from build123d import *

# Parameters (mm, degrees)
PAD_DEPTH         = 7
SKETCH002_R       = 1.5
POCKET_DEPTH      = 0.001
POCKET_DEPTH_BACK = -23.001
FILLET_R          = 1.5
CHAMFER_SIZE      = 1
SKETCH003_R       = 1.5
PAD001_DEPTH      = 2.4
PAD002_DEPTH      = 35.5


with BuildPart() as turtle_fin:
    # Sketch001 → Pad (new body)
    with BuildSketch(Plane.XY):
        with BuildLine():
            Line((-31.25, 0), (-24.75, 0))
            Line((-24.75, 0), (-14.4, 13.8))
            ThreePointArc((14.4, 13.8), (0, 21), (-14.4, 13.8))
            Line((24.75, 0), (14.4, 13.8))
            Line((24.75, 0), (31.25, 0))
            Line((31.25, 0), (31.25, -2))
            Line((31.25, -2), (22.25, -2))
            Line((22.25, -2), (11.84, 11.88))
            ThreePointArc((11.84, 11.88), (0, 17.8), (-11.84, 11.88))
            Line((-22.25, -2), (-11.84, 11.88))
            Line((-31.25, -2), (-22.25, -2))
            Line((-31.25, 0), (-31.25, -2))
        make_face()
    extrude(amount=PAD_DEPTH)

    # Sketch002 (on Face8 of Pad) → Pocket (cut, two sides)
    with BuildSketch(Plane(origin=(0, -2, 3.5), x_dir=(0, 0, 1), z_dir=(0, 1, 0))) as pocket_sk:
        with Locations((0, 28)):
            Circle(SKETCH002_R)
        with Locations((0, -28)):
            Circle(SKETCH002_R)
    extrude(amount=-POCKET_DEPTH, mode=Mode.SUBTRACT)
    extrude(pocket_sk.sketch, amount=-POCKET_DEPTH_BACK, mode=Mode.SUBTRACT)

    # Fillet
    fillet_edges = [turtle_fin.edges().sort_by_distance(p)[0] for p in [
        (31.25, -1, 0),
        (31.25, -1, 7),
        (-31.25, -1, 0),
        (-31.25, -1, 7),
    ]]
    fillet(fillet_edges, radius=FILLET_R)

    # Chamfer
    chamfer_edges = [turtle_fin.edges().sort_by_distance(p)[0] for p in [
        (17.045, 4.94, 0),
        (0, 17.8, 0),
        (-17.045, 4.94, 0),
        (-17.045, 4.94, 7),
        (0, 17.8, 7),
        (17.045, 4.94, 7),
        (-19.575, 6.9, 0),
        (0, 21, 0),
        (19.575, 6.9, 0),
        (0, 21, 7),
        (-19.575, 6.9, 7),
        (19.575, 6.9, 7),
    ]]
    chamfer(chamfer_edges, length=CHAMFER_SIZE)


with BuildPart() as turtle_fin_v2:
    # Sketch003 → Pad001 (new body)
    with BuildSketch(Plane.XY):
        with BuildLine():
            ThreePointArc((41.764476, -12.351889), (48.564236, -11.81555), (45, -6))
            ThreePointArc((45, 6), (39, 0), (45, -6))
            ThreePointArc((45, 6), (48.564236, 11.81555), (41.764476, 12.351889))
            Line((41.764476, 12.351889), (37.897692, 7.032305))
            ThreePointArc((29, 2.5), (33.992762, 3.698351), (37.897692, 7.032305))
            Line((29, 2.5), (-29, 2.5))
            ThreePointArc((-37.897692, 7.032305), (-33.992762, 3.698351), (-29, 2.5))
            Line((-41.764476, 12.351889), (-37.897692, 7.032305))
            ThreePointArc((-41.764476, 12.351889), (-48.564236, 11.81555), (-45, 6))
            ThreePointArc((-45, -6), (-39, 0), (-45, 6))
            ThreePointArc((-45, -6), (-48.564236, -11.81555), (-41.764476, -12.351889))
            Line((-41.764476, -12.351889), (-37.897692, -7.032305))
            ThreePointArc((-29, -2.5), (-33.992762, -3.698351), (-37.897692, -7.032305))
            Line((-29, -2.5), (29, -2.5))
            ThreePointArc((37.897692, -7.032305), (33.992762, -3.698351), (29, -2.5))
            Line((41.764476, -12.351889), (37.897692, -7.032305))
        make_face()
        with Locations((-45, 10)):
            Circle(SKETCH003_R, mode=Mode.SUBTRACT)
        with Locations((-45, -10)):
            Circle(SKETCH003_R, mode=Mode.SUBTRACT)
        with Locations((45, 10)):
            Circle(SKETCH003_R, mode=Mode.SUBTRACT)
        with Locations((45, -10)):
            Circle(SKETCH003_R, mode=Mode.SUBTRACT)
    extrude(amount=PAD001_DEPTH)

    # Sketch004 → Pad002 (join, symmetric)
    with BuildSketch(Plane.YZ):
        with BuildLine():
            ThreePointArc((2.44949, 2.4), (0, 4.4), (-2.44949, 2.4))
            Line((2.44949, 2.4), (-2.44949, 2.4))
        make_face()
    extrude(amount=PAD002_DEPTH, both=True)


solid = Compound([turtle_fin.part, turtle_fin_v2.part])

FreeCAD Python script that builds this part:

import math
import FreeCAD as App
import Part
import Sketcher
Q = App.Units.Quantity


def edges_at(feature, points):
    """Names of the edges that pass closest to the given points."""
    edges = feature.Shape.Edges
    near = lambda p: min(range(len(edges)), key=lambda i: edges[i].distToShape(Part.Vertex(*p))[0])
    return sorted({f"Edge{near(p) + 1}" for p in points})

doc = App.newDocument("Part")
body = doc.addObject("PartDesign::Body", "Body")

sketch1 = body.newObject("Sketcher::SketchObject", "Sketch")
sketch1.AttachmentSupport = (doc.getObject("XY_Plane"), [""])
sketch1.MapMode = "FlatFace"
sketch1.addGeometry(Part.LineSegment(App.Vector(-24.8, 0, 0), App.Vector(-31.2, 0, 0)), False)
sketch1.addGeometry(Part.LineSegment(App.Vector(-31.2, 0, 0), App.Vector(-31.2, -2, 0)), False)
sketch1.addGeometry(Part.LineSegment(App.Vector(-31.2, -2, 0), App.Vector(-22.2, -2, 0)), False)
sketch1.addGeometry(Part.LineSegment(App.Vector(-22.2, -2, 0), App.Vector(-11.8, 11.9, 0)), False)
sketch1.addGeometry(Part.ArcOfCircle(Part.Circle(App.Vector(0, 3, 0), App.Vector(0, 0, 1), 14.8), math.radians(37), math.radians(143)), False)
sketch1.addGeometry(Part.LineSegment(App.Vector(11.8, 11.9, 0), App.Vector(22.2, -2, 0)), False)
sketch1.addGeometry(Part.LineSegment(App.Vector(22.2, -2, 0), App.Vector(31.2, -2, 0)), False)
sketch1.addGeometry(Part.LineSegment(App.Vector(31.2, -2, 0), App.Vector(31.2, 0, 0)), False)
sketch1.addGeometry(Part.LineSegment(App.Vector(31.2, 0, 0), App.Vector(24.8, 0, 0)), False)
sketch1.addGeometry(Part.LineSegment(App.Vector(24.8, 0, 0), App.Vector(14.4, 13.8, 0)), False)
sketch1.addGeometry(Part.ArcOfCircle(Part.Circle(App.Vector(0, 3, 0), App.Vector(0, 0, 1), 18), math.radians(37), math.radians(143)), False)
sketch1.addGeometry(Part.LineSegment(App.Vector(-14.4, 13.8, 0), App.Vector(-24.8, 0, 0)), False)
sketch1.addConstraint(Sketcher.Constraint("Coincident", 0, 2, 1, 1))
sketch1.addConstraint(Sketcher.Constraint("Coincident", 1, 2, 2, 1))
sketch1.addConstraint(Sketcher.Constraint("Coincident", 2, 2, 3, 1))
sketch1.addConstraint(Sketcher.Constraint("Tangent", 3, 2, 4, 2))
sketch1.addConstraint(Sketcher.Constraint("Tangent", 4, 1, 5, 1))
sketch1.addConstraint(Sketcher.Constraint("Coincident", 5, 2, 6, 1))
sketch1.addConstraint(Sketcher.Constraint("Coincident", 6, 2, 7, 1))
sketch1.addConstraint(Sketcher.Constraint("Coincident", 7, 2, 8, 1))
sketch1.addConstraint(Sketcher.Constraint("Coincident", 8, 2, 9, 1))
sketch1.addConstraint(Sketcher.Constraint("Tangent", 9, 2, 10, 1))
sketch1.addConstraint(Sketcher.Constraint("Tangent", 10, 2, 11, 1))
sketch1.addConstraint(Sketcher.Constraint("Coincident", 11, 2, 0, 1))
sketch1.addConstraint(Sketcher.Constraint("Horizontal", 0))
sketch1.addConstraint(Sketcher.Constraint("Vertical", 1))
sketch1.addConstraint(Sketcher.Constraint("Horizontal", 2))
sketch1.addConstraint(Sketcher.Constraint("Horizontal", 6))
sketch1.addConstraint(Sketcher.Constraint("Vertical", 7))
sketch1.addConstraint(Sketcher.Constraint("Horizontal", 8))
sketch1.addConstraint(Sketcher.Constraint("Coincident", 10, 3, 4, 3))
sketch1.addConstraint(Sketcher.Constraint("Symmetric", 0, 2, 7, 2, -1, 1))
sketch1.addConstraint(Sketcher.Constraint("Symmetric", 3, 2, 4, 1, -2))
sketch1.addConstraint(Sketcher.Constraint("Symmetric", 8, 2, 11, 2, -2))
sketch1.addConstraint(Sketcher.Constraint("Parallel", 5, 9))
sketch1.addConstraint(Sketcher.Constraint("Horizontal", 2, 2, 5, 2))
sketch1.addConstraint(Sketcher.Constraint("Radius", 10, Q("18 mm")))
sketch1.addConstraint(Sketcher.Constraint("Radius", 4, Q("14.8 mm")))
sketch1.addConstraint(Sketcher.Constraint("DistanceX", 2, 1, 2, 2, Q("9 mm")))
sketch1.addConstraint(Sketcher.Constraint("DistanceY", 1, 2, 1, 1, Q("2 mm")))
sketch1.addConstraint(Sketcher.Constraint("DistanceY", -1, 1, 4, 3, Q("3 mm")))
sketch1.addConstraint(Sketcher.Constraint("DistanceX", -1, 1, 9, 2, Q("14.4 mm")))
pad1 = body.newObject("PartDesign::Pad", "Pad")
pad1.Profile = sketch1
pad1.Length = 7

sketch2 = body.newObject("Sketcher::SketchObject", "Sketch001")
sketch2.AttachmentSupport = (doc.getObject("XZ_Plane"), [""])
sketch2.MapMode = "FlatFace"
sketch2.AttachmentOffset = App.Placement(App.Vector(0, 0, 2), App.Rotation())
sketch2.addGeometry(Part.Circle(App.Vector(28, 3.5, 0), App.Vector(0, 0, 1), 1.5), False)
sketch2.addGeometry(Part.Circle(App.Vector(-28, 3.5, 0), App.Vector(0, 0, 1), 1.5), False)
sketch2.addConstraint(Sketcher.Constraint("Equal", 0, 1))
sketch2.addConstraint(Sketcher.Constraint("Symmetric", 0, 3, 1, 3, -2))
sketch2.addConstraint(Sketcher.Constraint("Diameter", 0, Q("3 mm")))
sketch2.addConstraint(Sketcher.Constraint("DistanceX", -1, 1, 0, 3, Q("28 mm")))
sketch2.addConstraint(Sketcher.Constraint("DistanceY", -1, 1, 0, 3, Q("3.5 mm")))
pocket1 = body.newObject("PartDesign::Pocket", "Pocket")
pocket1.Profile = sketch2
pocket1.Type = "ThroughAll"
pocket1.Midplane = True
doc.recompute()

fillet = body.newObject("PartDesign::Fillet", "Fillet")
fillet.Base = (pocket1, edges_at(pocket1, [
    (31.25, -1, 0),
    (31.25, -1, 7),
    (-31.25, -1, 0),
    (-31.25, -1, 7),
]))
fillet.Radius = 1.5
doc.recompute()

chamfer = body.newObject("PartDesign::Chamfer", "Chamfer")
chamfer.Base = (fillet, edges_at(fillet, [
    (17.045, 4.94, 0),
    (0, 17.8, 0),
    (-17.045, 4.94, 0),
    (-17.045, 4.94, 7),
    (0, 17.8, 7),
    (17.045, 4.94, 7),
    (-19.575, 6.9, 0),
    (0, 21, 0),
    (19.575, 6.9, 0),
    (0, 21, 7),
    (-19.575, 6.9, 7),
    (19.575, 6.9, 7),
]))
chamfer.Size = 1
body2 = doc.addObject("PartDesign::Body", "Body001")

sketch3 = body2.newObject("Sketcher::SketchObject", "Sketch002")
sketch3.AttachmentSupport = (doc.getObject("XY_Plane001"), [""])
sketch3.MapMode = "FlatFace"
sketch3.addGeometry(Part.ArcOfCircle(Part.Circle(App.Vector(45, -10, 0), App.Vector(0, 0, 1), 4), math.radians(-144), math.radians(90)), False)
sketch3.addGeometry(Part.ArcOfCircle(Part.Circle(App.Vector(45, 0, 0), App.Vector(0, 0, 1), 6), math.radians(90), math.radians(270)), False)
sketch3.addGeometry(Part.ArcOfCircle(Part.Circle(App.Vector(45, 10, 0), App.Vector(0, 0, 1), 4), math.radians(-90), math.radians(144)), False)
sketch3.addGeometry(Part.LineSegment(App.Vector(41.8, 12.4, 0), App.Vector(37.9, 7, 0)), False)
sketch3.addGeometry(Part.ArcOfCircle(Part.Circle(App.Vector(29, 13.5, 0), App.Vector(0, 0, 1), 11), math.radians(-90), math.radians(-36)), False)
sketch3.addGeometry(Part.LineSegment(App.Vector(29, 2.5, 0), App.Vector(-29, 2.5, 0)), False)
sketch3.addGeometry(Part.ArcOfCircle(Part.Circle(App.Vector(-29, 13.5, 0), App.Vector(0, 0, 1), 11), math.radians(-144), math.radians(-90)), False)
sketch3.addGeometry(Part.LineSegment(App.Vector(-37.9, 7, 0), App.Vector(-41.8, 12.4, 0)), False)
sketch3.addGeometry(Part.ArcOfCircle(Part.Circle(App.Vector(-45, 10, 0), App.Vector(0, 0, 1), 4), math.radians(36), math.radians(270)), False)
sketch3.addGeometry(Part.ArcOfCircle(Part.Circle(App.Vector(-45, 0, 0), App.Vector(0, 0, 1), 6), math.radians(-90), math.radians(90)), False)
sketch3.addGeometry(Part.ArcOfCircle(Part.Circle(App.Vector(-45, -10, 0), App.Vector(0, 0, 1), 4), math.radians(90), math.radians(324)), False)
sketch3.addGeometry(Part.LineSegment(App.Vector(-41.8, -12.4, 0), App.Vector(-37.9, -7, 0)), False)
sketch3.addGeometry(Part.ArcOfCircle(Part.Circle(App.Vector(-29, -13.5, 0), App.Vector(0, 0, 1), 11), math.radians(90), math.radians(144)), False)
sketch3.addGeometry(Part.LineSegment(App.Vector(-29, -2.5, 0), App.Vector(29, -2.5, 0)), False)
sketch3.addGeometry(Part.ArcOfCircle(Part.Circle(App.Vector(29, -13.5, 0), App.Vector(0, 0, 1), 11), math.radians(36), math.radians(90)), False)
sketch3.addGeometry(Part.LineSegment(App.Vector(37.9, -7, 0), App.Vector(41.8, -12.4, 0)), False)
sketch3.addGeometry(Part.Circle(App.Vector(-45, -10, 0), App.Vector(0, 0, 1), 1.5), False)
sketch3.addGeometry(Part.Circle(App.Vector(45, -10, 0), App.Vector(0, 0, 1), 1.5), False)
sketch3.addGeometry(Part.Circle(App.Vector(-45, 10, 0), App.Vector(0, 0, 1), 1.5), False)
sketch3.addGeometry(Part.Circle(App.Vector(45, 10, 0), App.Vector(0, 0, 1), 1.5), False)
sketch3.addConstraint(Sketcher.Constraint("Tangent", 0, 2, 1, 2))
sketch3.addConstraint(Sketcher.Constraint("Tangent", 1, 1, 2, 1))
sketch3.addConstraint(Sketcher.Constraint("Tangent", 2, 2, 3, 1))
sketch3.addConstraint(Sketcher.Constraint("Tangent", 3, 2, 4, 2))
sketch3.addConstraint(Sketcher.Constraint("Tangent", 4, 1, 5, 1))
sketch3.addConstraint(Sketcher.Constraint("Tangent", 5, 2, 6, 2))
sketch3.addConstraint(Sketcher.Constraint("Tangent", 6, 1, 7, 1))
sketch3.addConstraint(Sketcher.Constraint("Tangent", 7, 2, 8, 1))
sketch3.addConstraint(Sketcher.Constraint("Tangent", 8, 2, 9, 2))
sketch3.addConstraint(Sketcher.Constraint("Tangent", 9, 1, 10, 1))
sketch3.addConstraint(Sketcher.Constraint("Tangent", 10, 2, 11, 1))
sketch3.addConstraint(Sketcher.Constraint("Tangent", 11, 2, 12, 2))
sketch3.addConstraint(Sketcher.Constraint("Tangent", 12, 1, 13, 1))
sketch3.addConstraint(Sketcher.Constraint("Tangent", 13, 2, 14, 2))
sketch3.addConstraint(Sketcher.Constraint("Tangent", 14, 1, 15, 1))
sketch3.addConstraint(Sketcher.Constraint("Tangent", 15, 2, 0, 1))
sketch3.addConstraint(Sketcher.Constraint("Horizontal", 5))
sketch3.addConstraint(Sketcher.Constraint("Horizontal", 13))
sketch3.addConstraint(Sketcher.Constraint("Coincident", 16, 3, 10, 3))
sketch3.addConstraint(Sketcher.Constraint("Coincident", 17, 3, 0, 3))
sketch3.addConstraint(Sketcher.Constraint("Coincident", 18, 3, 8, 3))
sketch3.addConstraint(Sketcher.Constraint("Coincident", 19, 3, 2, 3))
sketch3.addConstraint(Sketcher.Constraint("Equal", 0, 2))
sketch3.addConstraint(Sketcher.Constraint("Equal", 4, 6))
sketch3.addConstraint(Sketcher.Constraint("Equal", 2, 8))
sketch3.addConstraint(Sketcher.Constraint("Equal", 1, 9))
sketch3.addConstraint(Sketcher.Constraint("Equal", 8, 10))
sketch3.addConstraint(Sketcher.Constraint("Equal", 6, 12))
sketch3.addConstraint(Sketcher.Constraint("Equal", 12, 14))
sketch3.addConstraint(Sketcher.Constraint("Equal", 16, 17))
sketch3.addConstraint(Sketcher.Constraint("Equal", 17, 18))
sketch3.addConstraint(Sketcher.Constraint("Equal", 18, 19))
sketch3.addConstraint(Sketcher.Constraint("Symmetric", 0, 3, 8, 3, -1, 1))
sketch3.addConstraint(Sketcher.Constraint("Symmetric", 4, 3, 12, 3, -1, 1))
sketch3.addConstraint(Sketcher.Constraint("Symmetric", 2, 3, 8, 3, -2))
sketch3.addConstraint(Sketcher.Constraint("Symmetric", 11, 2, 14, 1, -2))
sketch3.addConstraint(Sketcher.Constraint("Parallel", 7, 15))
sketch3.addConstraint(Sketcher.Constraint("Vertical", 0, 3, 1, 3))
sketch3.addConstraint(Sketcher.Constraint("Vertical", 8, 3, 9, 3))
sketch3.addConstraint(Sketcher.Constraint("Diameter", 16, Q("3 mm")))
sketch3.addConstraint(Sketcher.Constraint("Radius", 0, Q("4 mm")))
sketch3.addConstraint(Sketcher.Constraint("Radius", 1, Q("6 mm")))
sketch3.addConstraint(Sketcher.Constraint("Radius", 4, Q("11.000002 mm")))
sketch3.addConstraint(Sketcher.Constraint("DistanceX", 5, 2, 5, 1, Q("58 mm")))
sketch3.addConstraint(Sketcher.Constraint("DistanceX", -1, 1, 0, 3, Q("45 mm")))
sketch3.addConstraint(Sketcher.Constraint("DistanceY", 14, 3, 4, 1, Q("16.000002 mm")))
pad2 = body2.newObject("PartDesign::Pad", "Pad001")
pad2.Profile = sketch3
pad2.Length = 2.4

sketch4 = body2.newObject("Sketcher::SketchObject", "Sketch003")
sketch4.AttachmentSupport = (doc.getObject("YZ_Plane001"), [""])
sketch4.MapMode = "FlatFace"
sketch4.addGeometry(Part.ArcOfCircle(Part.Circle(App.Vector(0, 1.9, 0), App.Vector(0, 0, 1), 2.5), math.radians(12), math.radians(168)), False)
sketch4.addGeometry(Part.LineSegment(App.Vector(-2.4, 2.4, 0), App.Vector(2.4, 2.4, 0)), False)
sketch4.addConstraint(Sketcher.Constraint("Coincident", 0, 1, 1, 2))
sketch4.addConstraint(Sketcher.Constraint("Coincident", 1, 1, 0, 2))
sketch4.addConstraint(Sketcher.Constraint("Horizontal", 1))
sketch4.addConstraint(Sketcher.Constraint("PointOnObject", 0, 3, -2))
sketch4.addConstraint(Sketcher.Constraint("Radius", 0, Q("2.5 mm")))
sketch4.addConstraint(Sketcher.Constraint("DistanceY", -1, 1, 0, 3, Q("1.9 mm")))
sketch4.addConstraint(Sketcher.Constraint("DistanceY", -1, 1, 0, 1, Q("2.4 mm")))
pad3 = body2.newObject("PartDesign::Pad", "Pad002")
pad3.Profile = sketch4
pad3.Length = 71
pad3.Midplane = True

doc.recompute()
